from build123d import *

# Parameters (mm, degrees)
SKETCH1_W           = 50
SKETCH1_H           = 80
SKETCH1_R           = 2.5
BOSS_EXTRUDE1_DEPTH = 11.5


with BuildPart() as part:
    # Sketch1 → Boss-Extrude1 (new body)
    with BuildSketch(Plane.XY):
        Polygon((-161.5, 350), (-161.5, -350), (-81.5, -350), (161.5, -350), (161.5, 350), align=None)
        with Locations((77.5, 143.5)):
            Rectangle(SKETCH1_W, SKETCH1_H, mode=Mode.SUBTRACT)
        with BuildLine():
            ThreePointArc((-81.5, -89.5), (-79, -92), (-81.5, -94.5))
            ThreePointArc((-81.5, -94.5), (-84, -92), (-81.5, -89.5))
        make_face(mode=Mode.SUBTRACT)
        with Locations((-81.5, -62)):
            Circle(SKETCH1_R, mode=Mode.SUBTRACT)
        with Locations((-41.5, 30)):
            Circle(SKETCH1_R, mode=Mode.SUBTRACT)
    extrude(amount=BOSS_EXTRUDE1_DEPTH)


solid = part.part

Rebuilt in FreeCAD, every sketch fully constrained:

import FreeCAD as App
import Part
import Sketcher

V = App.Vector


def add_polygon(sketch, points):
    """Adds a closed chain of lines whose ends are joined by coincident constraints."""
    first, n = sketch.GeometryCount, len(points)
    for a, b in zip(points, points[1:] + points[:1]):
        sketch.addGeometry(Part.LineSegment(App.Vector(*a, 0), App.Vector(*b, 0)), False)
    for i in range(n):
        sketch.addConstraint(Sketcher.Constraint("Coincident", first + i, 2, first + (i + 1) % n, 1))

doc = App.newDocument("Part")
params = doc.addObject("Spreadsheet::Sheet", "Params")
for row, (alias, value) in enumerate([
    ("sketch1_diameter", "5 mm"),
    ("sketch1_width", "323 mm"),
    ("sketch1_width2", "50 mm"),
    ("sketch1_height", "700 mm"),
    ("sketch1_height2", "80 mm"),
    ("pad1_length", "11.5 mm"),
], start=1):
    params.set(f"A{row}", alias)
    params.set(f"B{row}", "=" + value)
    params.setAlias(f"B{row}", alias)

body = doc.addObject("PartDesign::Body", "Body")

# Sketch on XY plane
sketch1 = body.newObject("Sketcher::SketchObject", "Sketch")
sketch1.AttachmentSupport = (doc.getObject("XY_Plane"), [""])
sketch1.MapMode = "FlatFace"
add_polygon(sketch1, [(-161.5, 350), (-161.5, -350), (161.5, -350), (161.5, 350)])  # lines 0-3
sketch1.addGeometry(Part.Circle(V(-81.5, -92, 0), V(0, 0, 1), 2.5), False)  # 4
sketch1.addGeometry(Part.Circle(V(-81.5, -62, 0), V(0, 0, 1), 2.5), False)  # 5
sketch1.addGeometry(Part.Circle(V(-41.5, 30, 0), V(0, 0, 1), 2.5), False)  # 6
add_polygon(sketch1, [(102.5, 103.5), (52.5, 103.5), (52.5, 183.5), (102.5, 183.5)])  # lines 7-10
sketch1.addConstraint(Sketcher.Constraint("Vertical", 0))
sketch1.addConstraint(Sketcher.Constraint("Horizontal", 1))
sketch1.addConstraint(Sketcher.Constraint("Vertical", 2))
sketch1.addConstraint(Sketcher.Constraint("Horizontal", 3))
sketch1.addConstraint(Sketcher.Constraint("Horizontal", 7))
sketch1.addConstraint(Sketcher.Constraint("Vertical", 8))
sketch1.addConstraint(Sketcher.Constraint("Horizontal", 9))
sketch1.addConstraint(Sketcher.Constraint("Vertical", 10))
sketch1.addConstraint(Sketcher.Constraint("Equal", 4, 5))
sketch1.addConstraint(Sketcher.Constraint("Equal", 5, 6))
sketch1.addConstraint(Sketcher.Constraint("Symmetric", 0, 2, 2, 2, -1, 1))
sketch1.addConstraint(Sketcher.Constraint("Vertical", 4, 3, 5, 3))
sketch1.addConstraint(Sketcher.Constraint("Diameter", 4, 5.0))
sketch1.addConstraint(Sketcher.Constraint("DistanceX", 1, 1, 1, 2, 323.0))
sketch1.addConstraint(Sketcher.Constraint("DistanceX", 7, 2, 7, 1, 50.0))
sketch1.addConstraint(Sketcher.Constraint("DistanceY", 0, 2, 0, 1, 700.0))
sketch1.addConstraint(Sketcher.Constraint("DistanceY", 8, 1, 8, 2, 80.0))
sketch1.addConstraint(Sketcher.Constraint("DistanceY", 4, 3, -1, 1, 92.0))
sketch1.addConstraint(Sketcher.Constraint("DistanceY", 5, 3, -1, 1, 62.0))
sketch1.addConstraint(Sketcher.Constraint("DistanceY", -1, 1, 6, 3, 30.0))
sketch1.addConstraint(Sketcher.Constraint("DistanceX", 5, 3, 6, 3, 40.0))
sketch1.addConstraint(Sketcher.Constraint("DistanceX", 0, 2, 4, 3, 80.0))
sketch1.addConstraint(Sketcher.Constraint("DistanceX", 6, 3, 7, 2, 94.0))
sketch1.addConstraint(Sketcher.Constraint("DistanceY", -1, 1, 7, 2, 103.5))
sketch1.setExpression("Constraints[20]", "Params.sketch1_diameter")
sketch1.setExpression("Constraints[21]", "Params.sketch1_width")
sketch1.setExpression("Constraints[22]", "Params.sketch1_width2")
sketch1.setExpression("Constraints[23]", "Params.sketch1_height")
sketch1.setExpression("Constraints[24]", "Params.sketch1_height2")
pad1 = body.newObject("PartDesign::Pad", "Pad")
pad1.Profile = sketch1
pad1.setExpression("Length", "Params.pad1_length")

doc.recompute()
